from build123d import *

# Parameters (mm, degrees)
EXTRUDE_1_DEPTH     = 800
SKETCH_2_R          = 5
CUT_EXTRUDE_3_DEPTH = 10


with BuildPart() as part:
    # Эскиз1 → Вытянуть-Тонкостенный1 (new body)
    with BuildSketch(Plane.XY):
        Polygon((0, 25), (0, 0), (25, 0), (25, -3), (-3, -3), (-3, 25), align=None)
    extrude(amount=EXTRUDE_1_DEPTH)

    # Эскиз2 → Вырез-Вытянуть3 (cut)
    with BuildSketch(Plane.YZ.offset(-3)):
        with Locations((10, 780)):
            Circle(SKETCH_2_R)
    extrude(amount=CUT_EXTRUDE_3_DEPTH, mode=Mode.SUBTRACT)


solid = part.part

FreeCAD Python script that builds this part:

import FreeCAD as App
import Part
import Sketcher


def add_polygon(sketch, points):
    """Adds a closed chain of lines whose ends are joined by coincident constraints."""
    first, n = sketch.GeometryCount, len(points)
    for a, b in zip(points, points[1:] + points[:1]):
        sketch.addGeometry(Part.LineSegment(App.Vector(*a, 0), App.Vector(*b, 0)), False)
    for i in range(n):
        sketch.addConstraint(Sketcher.Constraint("Coincident", first + i, 2, first + (i + 1) % n, 1))

doc = App.newDocument("Part")
params = doc.addObject("Spreadsheet::Sheet", "Params")
for row, (alias, value) in enumerate([
    ("sketch1_width", "3 mm"),
    ("sketch1_width2", "28 mm"),
    ("pad1_length", "800 mm"),
    ("sketch2_diameter", "10 mm"),
    ("pocket1_length", "10 mm"),
], start=1):
    params.set(f"A{row}", alias)
    params.set(f"B{row}", "=" + value)
    params.setAlias(f"B{row}", alias)

body = doc.addObject("PartDesign::Body", "Body")

sketch1 = doc.addObject("Sketcher::SketchObject", "Sketch")
body.addObject(sketch1)
sketch1.AttachmentSupport = (doc.XY_Plane, [""])
sketch1.MapMode = "FlatFace"
add_polygon(sketch1, [(0, 0), (0, 25), (-3, 25), (-3, -3), (25, -3), (25, 0)])
sketch1.addConstraint(Sketcher.Constraint("Vertical", 0))
sketch1.addConstraint(Sketcher.Constraint("Horizontal", 1))
sketch1.addConstraint(Sketcher.Constraint("Vertical", 2))
sketch1.addConstraint(Sketcher.Constraint("Horizontal", 3))
sketch1.addConstraint(Sketcher.Constraint("Vertical", 4))
sketch1.addConstraint(Sketcher.Constraint("Horizontal", 5))
sketch1.addConstraint(Sketcher.Constraint("Coincident", 5, 2, -1, 1))
sketch1.addConstraint(Sketcher.Constraint("Equal", 5, 0))
sketch1.addConstraint(Sketcher.Constraint("Equal", 3, 2))
sketch1.addConstraint(Sketcher.Constraint("DistanceX", 1, 2, 1, 1, 3.0))
sketch1.addConstraint(Sketcher.Constraint("DistanceX", 3, 1, 3, 2, 28.0))
sketch1.setExpression("Constraints[15]", "Params.sketch1_width")
sketch1.setExpression("Constraints[16]", "Params.sketch1_width2")
pad1 = doc.addObject("PartDesign::Pad", "Pad")
body.addObject(pad1)
pad1.Profile = sketch1
pad1.setExpression("Length", "Params.pad1_length")

sketch2 = doc.addObject("Sketcher::SketchObject", "Sketch001")
body.addObject(sketch2)
sketch2.AttachmentSupport = (doc.YZ_Plane, [""])
sketch2.MapMode = "FlatFace"
sketch2.AttachmentOffset = App.Placement(App.Vector(0, 0, -3), App.Rotation())
sketch2.addGeometry(Part.Circle(App.Vector(10, 780, 0), App.Vector(0, 0, 1), 5), False)
sketch2.addConstraint(Sketcher.Constraint("Diameter", 0, 10.0))
sketch2.addConstraint(Sketcher.Constraint("DistanceX", -1, 1, 0, 3, 10.0))
sketch2.addConstraint(Sketcher.Constraint("DistanceY", -1, 1, 0, 3, 780.0))
sketch2.setExpression("Constraints[0]", "Params.sketch2_diameter")
pocket1 = doc.addObject("PartDesign::Pocket", "Pocket")
body.addObject(pocket1)
pocket1.Profile = sketch2
pocket1.setExpression("Length", "Params.pocket1_length")
pocket1.Reversed = True

doc.recompute()
